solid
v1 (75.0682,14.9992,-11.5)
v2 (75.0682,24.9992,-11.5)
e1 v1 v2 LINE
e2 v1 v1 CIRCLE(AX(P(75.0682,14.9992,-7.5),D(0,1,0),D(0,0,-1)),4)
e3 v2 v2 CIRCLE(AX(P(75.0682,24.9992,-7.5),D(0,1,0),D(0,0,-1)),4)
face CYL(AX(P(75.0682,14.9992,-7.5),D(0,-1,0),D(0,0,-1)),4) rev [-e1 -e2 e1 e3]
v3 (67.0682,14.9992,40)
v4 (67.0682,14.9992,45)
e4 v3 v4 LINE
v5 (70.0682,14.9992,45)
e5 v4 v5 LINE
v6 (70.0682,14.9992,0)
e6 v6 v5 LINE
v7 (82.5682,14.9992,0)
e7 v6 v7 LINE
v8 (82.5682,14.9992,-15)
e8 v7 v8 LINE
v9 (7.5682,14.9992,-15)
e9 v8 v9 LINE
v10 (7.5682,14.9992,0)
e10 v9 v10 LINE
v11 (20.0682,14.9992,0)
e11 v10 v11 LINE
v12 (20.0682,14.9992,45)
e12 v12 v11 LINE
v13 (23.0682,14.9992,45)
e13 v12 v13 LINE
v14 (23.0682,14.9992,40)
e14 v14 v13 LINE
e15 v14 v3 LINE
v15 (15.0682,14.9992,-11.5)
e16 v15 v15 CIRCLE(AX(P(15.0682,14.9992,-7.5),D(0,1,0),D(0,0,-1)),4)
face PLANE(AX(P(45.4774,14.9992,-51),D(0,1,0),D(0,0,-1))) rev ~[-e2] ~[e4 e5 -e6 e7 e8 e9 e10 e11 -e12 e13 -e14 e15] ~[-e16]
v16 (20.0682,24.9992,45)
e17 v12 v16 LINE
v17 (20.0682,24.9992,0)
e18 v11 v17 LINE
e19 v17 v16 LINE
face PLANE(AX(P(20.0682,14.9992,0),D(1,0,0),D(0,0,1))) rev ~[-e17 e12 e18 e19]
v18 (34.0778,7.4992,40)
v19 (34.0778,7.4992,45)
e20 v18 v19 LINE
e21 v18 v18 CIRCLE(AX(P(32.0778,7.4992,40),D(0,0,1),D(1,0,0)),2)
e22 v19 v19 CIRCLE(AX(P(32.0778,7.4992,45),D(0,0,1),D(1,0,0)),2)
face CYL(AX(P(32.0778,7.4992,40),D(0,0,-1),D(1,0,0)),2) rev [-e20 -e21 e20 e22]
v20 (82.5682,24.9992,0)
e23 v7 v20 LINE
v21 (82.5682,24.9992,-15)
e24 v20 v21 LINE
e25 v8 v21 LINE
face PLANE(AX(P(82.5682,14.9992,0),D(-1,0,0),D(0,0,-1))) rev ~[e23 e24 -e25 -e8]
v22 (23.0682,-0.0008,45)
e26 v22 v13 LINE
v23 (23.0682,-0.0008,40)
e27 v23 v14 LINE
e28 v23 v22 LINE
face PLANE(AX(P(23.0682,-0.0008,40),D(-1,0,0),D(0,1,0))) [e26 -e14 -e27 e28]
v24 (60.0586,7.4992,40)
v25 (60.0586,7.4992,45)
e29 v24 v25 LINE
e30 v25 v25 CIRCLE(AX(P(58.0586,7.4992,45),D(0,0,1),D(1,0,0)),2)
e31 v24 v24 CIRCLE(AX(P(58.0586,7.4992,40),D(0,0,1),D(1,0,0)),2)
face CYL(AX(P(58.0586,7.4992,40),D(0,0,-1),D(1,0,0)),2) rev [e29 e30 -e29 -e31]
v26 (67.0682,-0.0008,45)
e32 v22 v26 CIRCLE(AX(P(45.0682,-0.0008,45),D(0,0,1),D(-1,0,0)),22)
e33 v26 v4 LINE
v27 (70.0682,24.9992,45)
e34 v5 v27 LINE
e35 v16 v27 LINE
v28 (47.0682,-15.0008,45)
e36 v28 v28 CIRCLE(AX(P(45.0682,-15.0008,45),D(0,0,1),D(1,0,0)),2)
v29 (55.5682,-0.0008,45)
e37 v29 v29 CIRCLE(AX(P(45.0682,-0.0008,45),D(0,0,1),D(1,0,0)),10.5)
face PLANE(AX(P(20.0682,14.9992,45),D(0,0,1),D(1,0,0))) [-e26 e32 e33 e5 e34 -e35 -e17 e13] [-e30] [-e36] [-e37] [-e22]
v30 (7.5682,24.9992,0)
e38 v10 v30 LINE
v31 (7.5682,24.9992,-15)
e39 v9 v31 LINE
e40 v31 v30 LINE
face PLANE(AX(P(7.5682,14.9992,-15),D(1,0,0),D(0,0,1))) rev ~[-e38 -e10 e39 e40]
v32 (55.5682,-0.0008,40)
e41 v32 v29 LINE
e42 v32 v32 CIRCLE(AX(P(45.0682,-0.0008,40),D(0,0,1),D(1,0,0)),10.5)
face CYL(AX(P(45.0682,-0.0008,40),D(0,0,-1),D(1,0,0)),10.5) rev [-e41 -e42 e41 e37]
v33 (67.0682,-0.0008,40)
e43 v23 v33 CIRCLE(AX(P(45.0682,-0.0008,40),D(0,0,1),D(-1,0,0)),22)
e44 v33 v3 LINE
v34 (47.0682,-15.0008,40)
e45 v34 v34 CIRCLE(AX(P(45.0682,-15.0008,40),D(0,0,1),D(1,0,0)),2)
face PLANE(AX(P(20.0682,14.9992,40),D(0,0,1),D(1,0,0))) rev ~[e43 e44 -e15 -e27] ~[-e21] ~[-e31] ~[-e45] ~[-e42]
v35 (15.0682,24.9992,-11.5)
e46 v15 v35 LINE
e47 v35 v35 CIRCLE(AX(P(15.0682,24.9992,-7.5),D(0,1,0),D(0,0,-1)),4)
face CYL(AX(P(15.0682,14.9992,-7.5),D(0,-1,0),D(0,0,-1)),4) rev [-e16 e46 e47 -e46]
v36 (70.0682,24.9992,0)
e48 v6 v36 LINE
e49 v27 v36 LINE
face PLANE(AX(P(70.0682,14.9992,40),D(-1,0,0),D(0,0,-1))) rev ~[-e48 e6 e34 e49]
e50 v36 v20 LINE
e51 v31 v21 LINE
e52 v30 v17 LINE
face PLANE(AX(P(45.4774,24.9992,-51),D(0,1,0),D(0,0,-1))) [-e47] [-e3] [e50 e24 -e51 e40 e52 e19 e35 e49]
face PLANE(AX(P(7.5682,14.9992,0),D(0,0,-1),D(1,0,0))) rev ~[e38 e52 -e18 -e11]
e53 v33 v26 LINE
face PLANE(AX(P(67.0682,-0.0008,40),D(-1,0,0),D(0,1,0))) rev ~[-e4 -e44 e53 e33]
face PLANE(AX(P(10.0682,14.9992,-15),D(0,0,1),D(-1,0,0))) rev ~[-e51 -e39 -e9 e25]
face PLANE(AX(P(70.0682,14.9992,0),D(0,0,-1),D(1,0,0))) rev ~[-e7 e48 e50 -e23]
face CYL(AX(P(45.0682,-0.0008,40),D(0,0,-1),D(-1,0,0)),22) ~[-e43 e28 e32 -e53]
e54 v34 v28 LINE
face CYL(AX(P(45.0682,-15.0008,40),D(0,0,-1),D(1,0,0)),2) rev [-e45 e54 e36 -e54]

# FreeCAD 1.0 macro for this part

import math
import FreeCAD as App
import Part
import Sketcher
from FreeCAD import Vector
Q = App.Units.Quantity


def add_polygon(sketch, points):
    """Adds a closed chain of lines whose ends are joined by coincident constraints."""
    first, n = sketch.GeometryCount, len(points)
    for a, b in zip(points, points[1:] + points[:1]):
        sketch.addGeometry(Part.LineSegment(App.Vector(*a, 0), App.Vector(*b, 0)), False)
    for i in range(n):
        sketch.addConstraint(Sketcher.Constraint("Coincident", first + i, 2, first + (i + 1) % n, 1))

doc = App.newDocument("Part")
body = doc.addObject("PartDesign::Body", "Body")

sketch1 = body.newObject("Sketcher::SketchObject", "Sketch")
sketch1.AttachmentSupport = (doc.getObject("XZ_Plane"), [""])
sketch1.MapMode = "FlatFace"
sketch1.AttachmentOffset = App.Placement(Vector(0, 0, -14.9992), App.Rotation())
add_polygon(sketch1, [(7.6, -15), (7.6, 0), (20.1, 0), (20.1, 40), (70.1, 40), (70.1, 0), (82.6, 0), (82.6, -15)])
sketch1.addGeometry(Part.Circle(Vector(75.1, -7.5, 0), Vector(0, 0, 1), 4), False)
sketch1.addGeometry(Part.Circle(Vector(15.1, -7.5, 0), Vector(0, 0, 1), 4), False)
sketch1.addConstraint([
    Sketcher.Constraint("Vertical", 0),
    Sketcher.Constraint("Horizontal", 1),
    Sketcher.Constraint("Vertical", 2),
    Sketcher.Constraint("Horizontal", 3),
    Sketcher.Constraint("Vertical", 4),
    Sketcher.Constraint("Horizontal", 5),
    Sketcher.Constraint("Vertical", 6),
    Sketcher.Constraint("Horizontal", 7),
    Sketcher.Constraint("Equal", 8, 9),
    Sketcher.Constraint("PointOnObject", 0, 2, -1),
    Sketcher.Constraint("PointOnObject", 4, 2, -1),
    Sketcher.Constraint("Horizontal", 8, 3, 9, 3),
    Sketcher.Constraint("Equal", 1, 5),
    Sketcher.Constraint("Diameter", 8, Q("8 mm")),
    Sketcher.Constraint("DistanceX", 3, 1, 3, 2, Q("50 mm")),
    Sketcher.Constraint("DistanceX", 7, 2, 7, 1, Q("75 mm")),
    Sketcher.Constraint("DistanceY", 0, 1, 0, 2, Q("15 mm")),
    Sketcher.Constraint("DistanceY", 2, 1, 2, 2, Q("40 mm")),
    Sketcher.Constraint("DistanceX", 9, 3, 8, 3, Q("60 mm")),
    Sketcher.Constraint("DistanceX", 9, 3, 1, 2, Q("5 mm")),
    Sketcher.Constraint("DistanceY", 8, 3, -1, 1, Q("7.5 mm")),
    Sketcher.Constraint("DistanceX", -1, 1, 8, 3, Q("75.0682 mm")),
])
pad1 = body.newObject("PartDesign::Pad", "Pad")
pad1.Profile = sketch1
pad1.Length = 10
pad1.Reversed = True

sketch2 = body.newObject("Sketcher::SketchObject", "Sketch001")
sketch2.AttachmentSupport = (doc.getObject("XY_Plane"), [""])
sketch2.MapMode = "FlatFace"
sketch2.AttachmentOffset = App.Placement(Vector(0, 0, 40), App.Rotation())
sketch2.addGeometry([
    Part.LineSegment(Vector(20.1, 25, 0), Vector(20.1, 15, 0)),
    Part.LineSegment(Vector(20.1, 15, 0), Vector(23.1, 15, 0)),
    Part.LineSegment(Vector(23.1, 15, 0), Vector(23.1, 0, 0)),
    Part.ArcOfCircle(Part.Circle(Vector(45.1, 0, 0), Vector(0, 0, 1), 22), math.radians(180), math.radians(360)),
    Part.LineSegment(Vector(67.1, 0, 0), Vector(67.1, 15, 0)),
    Part.LineSegment(Vector(67.1, 15, 0), Vector(70.1, 15, 0)),
    Part.LineSegment(Vector(70.1, 15, 0), Vector(70.1, 25, 0)),
    Part.LineSegment(Vector(70.1, 25, 0), Vector(20.1, 25, 0)),
    Part.Circle(Vector(58.1, 7.5, 0), Vector(0, 0, 1), 2),
    Part.Circle(Vector(45.1, -15, 0), Vector(0, 0, 1), 2),
    Part.Circle(Vector(45.1, 0, 0), Vector(0, 0, 1), 10.5),
    Part.Circle(Vector(32.1, 7.5, 0), Vector(0, 0, 1), 2),
], False)
sketch2.addConstraint([
    Sketcher.Constraint("Coincident", 0, 2, 1, 1),
    Sketcher.Constraint("Coincident", 1, 2, 2, 1),
    Sketcher.Constraint("Tangent", 2, 2, 3, 1),
    Sketcher.Constraint("Tangent", 3, 2, 4, 1),
    Sketcher.Constraint("Coincident", 4, 2, 5, 1),
    Sketcher.Constraint("Coincident", 5, 2, 6, 1),
    Sketcher.Constraint("Coincident", 6, 2, 7, 1),
    Sketcher.Constraint("Coincident", 7, 2, 0, 1),
    Sketcher.Constraint("Vertical", 0),
    Sketcher.Constraint("Horizontal", 1),
    Sketcher.Constraint("Vertical", 2),
    Sketcher.Constraint("Vertical", 4),
    Sketcher.Constraint("Horizontal", 5),
    Sketcher.Constraint("Vertical", 6),
    Sketcher.Constraint("Horizontal", 7),
    Sketcher.Constraint("Coincident", 10, 3, 3, 3),
    Sketcher.Constraint("Equal", 8, 9),
    Sketcher.Constraint("Equal", 9, 11),
    Sketcher.Constraint("Horizontal", 8, 3, 11, 3),
    Sketcher.Constraint("Horizontal", 1, 2, 4, 2),
    Sketcher.Constraint("Vertical", 3, 3, 9, 3),
    Sketcher.Constraint("Equal", 1, 5),
    Sketcher.Constraint("Diameter", 8, Q("4 mm")),
    Sketcher.Constraint("Diameter", 10, Q("21 mm")),
    Sketcher.Constraint("Radius", 3, Q("22 mm")),
    Sketcher.Constraint("DistanceY", 9, 3, 0, 2, Q("30 mm")),
    Sketcher.Constraint("DistanceX", 1, 1, 1, 2, Q("3 mm")),
    Sketcher.Constraint("DistanceY", 0, 2, 0, 1, Q("10 mm")),
    Sketcher.Constraint("DistanceY", 2, 2, 2, 1, Q("15 mm")),
    Sketcher.Constraint("DistanceY", 3, 3, 8, 3, Q("7.5 mm")),
    Sketcher.Constraint("DistanceX", -1, 1, 3, 3, Q("45.0682 mm")),
    Sketcher.Constraint("DistanceY", 3, 3, -1, 1, Q("0.0008 mm")),
    Sketcher.Constraint("DistanceX", -1, 1, 8, 3, Q("58.0586 mm")),
    Sketcher.Constraint("DistanceX", -1, 1, 11, 3, Q("32.0778 mm")),
])
pad2 = body.newObject("PartDesign::Pad", "Pad001")
pad2.Profile = sketch2
pad2.Length = 5

doc.recompute()
